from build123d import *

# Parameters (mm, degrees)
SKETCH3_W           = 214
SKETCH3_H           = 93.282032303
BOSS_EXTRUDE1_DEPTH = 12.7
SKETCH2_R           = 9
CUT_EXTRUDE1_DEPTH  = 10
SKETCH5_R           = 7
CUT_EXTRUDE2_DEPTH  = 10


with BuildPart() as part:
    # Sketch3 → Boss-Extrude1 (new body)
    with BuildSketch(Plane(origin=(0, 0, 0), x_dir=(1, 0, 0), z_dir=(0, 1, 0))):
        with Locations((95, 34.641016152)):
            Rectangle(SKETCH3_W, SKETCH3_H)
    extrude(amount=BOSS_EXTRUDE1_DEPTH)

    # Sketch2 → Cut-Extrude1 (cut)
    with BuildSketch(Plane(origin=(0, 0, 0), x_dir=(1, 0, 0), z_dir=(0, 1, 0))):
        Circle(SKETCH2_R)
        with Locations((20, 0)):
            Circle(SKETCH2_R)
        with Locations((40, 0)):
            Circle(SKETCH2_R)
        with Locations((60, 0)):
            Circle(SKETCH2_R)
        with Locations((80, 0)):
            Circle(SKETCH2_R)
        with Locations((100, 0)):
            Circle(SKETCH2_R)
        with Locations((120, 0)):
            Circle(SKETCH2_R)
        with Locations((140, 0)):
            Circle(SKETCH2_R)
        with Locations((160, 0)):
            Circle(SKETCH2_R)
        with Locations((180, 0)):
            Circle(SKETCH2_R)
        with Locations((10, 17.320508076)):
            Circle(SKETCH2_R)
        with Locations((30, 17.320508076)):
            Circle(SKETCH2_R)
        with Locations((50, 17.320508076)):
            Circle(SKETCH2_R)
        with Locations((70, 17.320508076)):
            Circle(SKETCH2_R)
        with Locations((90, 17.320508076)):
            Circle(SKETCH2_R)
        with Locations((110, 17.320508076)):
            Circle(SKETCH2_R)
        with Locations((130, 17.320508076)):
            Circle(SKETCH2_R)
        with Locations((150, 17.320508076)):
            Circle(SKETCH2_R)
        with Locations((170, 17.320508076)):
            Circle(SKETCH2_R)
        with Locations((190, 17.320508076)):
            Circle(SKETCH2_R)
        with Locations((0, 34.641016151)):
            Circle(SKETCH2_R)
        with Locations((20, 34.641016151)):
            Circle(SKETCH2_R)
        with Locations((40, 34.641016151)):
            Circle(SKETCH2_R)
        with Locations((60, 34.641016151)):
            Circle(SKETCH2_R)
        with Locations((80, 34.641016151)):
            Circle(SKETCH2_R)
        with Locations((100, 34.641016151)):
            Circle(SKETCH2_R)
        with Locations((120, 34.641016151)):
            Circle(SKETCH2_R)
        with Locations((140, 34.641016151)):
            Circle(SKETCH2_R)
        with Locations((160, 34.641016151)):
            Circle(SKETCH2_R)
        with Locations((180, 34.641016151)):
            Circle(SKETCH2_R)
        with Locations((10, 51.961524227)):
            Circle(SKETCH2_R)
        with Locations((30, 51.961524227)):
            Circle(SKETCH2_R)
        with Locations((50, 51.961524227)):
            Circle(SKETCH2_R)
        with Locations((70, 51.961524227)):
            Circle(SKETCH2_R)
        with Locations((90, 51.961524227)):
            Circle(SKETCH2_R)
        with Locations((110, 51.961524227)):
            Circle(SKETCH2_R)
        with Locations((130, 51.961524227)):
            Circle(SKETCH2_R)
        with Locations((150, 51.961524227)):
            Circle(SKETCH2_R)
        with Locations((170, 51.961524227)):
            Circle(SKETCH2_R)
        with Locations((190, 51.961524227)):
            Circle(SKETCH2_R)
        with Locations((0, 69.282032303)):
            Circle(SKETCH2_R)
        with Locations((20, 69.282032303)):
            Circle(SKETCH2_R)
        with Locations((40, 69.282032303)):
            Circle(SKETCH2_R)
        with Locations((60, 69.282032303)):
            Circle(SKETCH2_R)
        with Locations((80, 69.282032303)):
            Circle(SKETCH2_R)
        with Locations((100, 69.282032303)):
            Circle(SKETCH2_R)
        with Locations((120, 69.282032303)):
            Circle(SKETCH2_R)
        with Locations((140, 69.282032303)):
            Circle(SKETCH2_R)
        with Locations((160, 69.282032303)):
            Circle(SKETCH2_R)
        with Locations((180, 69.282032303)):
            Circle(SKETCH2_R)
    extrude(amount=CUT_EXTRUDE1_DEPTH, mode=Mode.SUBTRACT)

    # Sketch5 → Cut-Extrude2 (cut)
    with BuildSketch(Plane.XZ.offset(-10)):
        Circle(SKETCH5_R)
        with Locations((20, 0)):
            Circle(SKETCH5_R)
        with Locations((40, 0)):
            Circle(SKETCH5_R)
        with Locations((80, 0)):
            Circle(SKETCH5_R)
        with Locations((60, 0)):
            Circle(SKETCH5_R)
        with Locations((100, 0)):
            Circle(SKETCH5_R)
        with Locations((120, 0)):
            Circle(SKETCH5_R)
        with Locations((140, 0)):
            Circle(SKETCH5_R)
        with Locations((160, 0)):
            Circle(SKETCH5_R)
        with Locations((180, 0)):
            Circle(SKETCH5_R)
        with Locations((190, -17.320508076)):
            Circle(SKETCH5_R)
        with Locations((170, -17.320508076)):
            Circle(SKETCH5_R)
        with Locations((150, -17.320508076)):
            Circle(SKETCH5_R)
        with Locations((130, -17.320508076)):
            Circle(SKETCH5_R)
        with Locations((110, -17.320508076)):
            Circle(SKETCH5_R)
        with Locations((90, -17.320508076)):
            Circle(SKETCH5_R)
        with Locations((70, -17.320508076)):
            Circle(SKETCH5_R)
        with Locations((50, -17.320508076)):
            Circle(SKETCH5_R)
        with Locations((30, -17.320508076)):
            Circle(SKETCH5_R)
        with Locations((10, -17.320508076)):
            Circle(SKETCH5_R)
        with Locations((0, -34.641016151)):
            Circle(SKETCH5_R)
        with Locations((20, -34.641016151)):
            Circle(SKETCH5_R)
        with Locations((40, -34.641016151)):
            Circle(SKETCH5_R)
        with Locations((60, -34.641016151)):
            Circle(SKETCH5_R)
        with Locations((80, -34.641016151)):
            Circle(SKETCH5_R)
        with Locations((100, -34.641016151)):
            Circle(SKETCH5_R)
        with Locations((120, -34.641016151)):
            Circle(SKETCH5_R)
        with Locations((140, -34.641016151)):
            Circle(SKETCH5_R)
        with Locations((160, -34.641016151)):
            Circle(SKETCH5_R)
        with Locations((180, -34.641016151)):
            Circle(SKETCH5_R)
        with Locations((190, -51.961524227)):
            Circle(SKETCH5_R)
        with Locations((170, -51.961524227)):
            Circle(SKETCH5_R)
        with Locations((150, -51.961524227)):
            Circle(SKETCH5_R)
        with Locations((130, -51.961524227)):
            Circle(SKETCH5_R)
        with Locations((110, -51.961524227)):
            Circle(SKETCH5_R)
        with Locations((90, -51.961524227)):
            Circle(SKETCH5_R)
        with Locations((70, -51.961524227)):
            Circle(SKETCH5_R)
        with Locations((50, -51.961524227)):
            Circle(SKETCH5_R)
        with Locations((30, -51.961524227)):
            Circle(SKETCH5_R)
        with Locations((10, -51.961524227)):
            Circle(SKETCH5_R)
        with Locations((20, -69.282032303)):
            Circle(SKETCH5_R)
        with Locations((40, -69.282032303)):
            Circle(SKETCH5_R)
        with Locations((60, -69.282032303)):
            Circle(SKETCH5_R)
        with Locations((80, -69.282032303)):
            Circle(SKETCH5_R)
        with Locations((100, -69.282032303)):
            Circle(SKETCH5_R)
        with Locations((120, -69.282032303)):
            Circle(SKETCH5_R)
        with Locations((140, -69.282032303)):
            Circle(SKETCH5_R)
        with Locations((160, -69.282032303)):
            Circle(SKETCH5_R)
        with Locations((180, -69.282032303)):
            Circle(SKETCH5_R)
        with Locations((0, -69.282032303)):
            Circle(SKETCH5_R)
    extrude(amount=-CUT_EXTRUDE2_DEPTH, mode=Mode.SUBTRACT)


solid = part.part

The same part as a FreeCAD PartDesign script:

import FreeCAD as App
import Part
import Sketcher

V = App.Vector
Q = App.Units.Quantity


def add_polygon(sketch, points):
    """Adds a closed chain of lines whose ends are joined by coincident constraints."""
    first, n = sketch.GeometryCount, len(points)
    for a, b in zip(points, points[1:] + points[:1]):
        sketch.addGeometry(Part.LineSegment(App.Vector(*a, 0), App.Vector(*b, 0)), False)
    for i in range(n):
        sketch.addConstraint(Sketcher.Constraint("Coincident", first + i, 2, first + (i + 1) % n, 1))

doc = App.newDocument("Part")
body = doc.addObject("PartDesign::Body", "Body")

# Sketch on XZ plane
sketch1 = body.newObject("Sketcher::SketchObject", "Sketch")
sketch1.AttachmentSupport = (doc.getObject("XZ_Plane"), [""])
sketch1.MapMode = "FlatFace"
add_polygon(sketch1, [(-12, -81), (-12, 12), (202, 12), (202, -81)])  # lines 0-3
sketch1.addConstraint(Sketcher.Constraint("Vertical", 0))
sketch1.addConstraint(Sketcher.Constraint("Horizontal", 1))
sketch1.addConstraint(Sketcher.Constraint("Vertical", 2))
sketch1.addConstraint(Sketcher.Constraint("Horizontal", 3))
sketch1.addConstraint(Sketcher.Constraint("DistanceX", 1, 1, 1, 2, Q("214 mm")))
sketch1.addConstraint(Sketcher.Constraint("DistanceX", 0, 2, -1, 1, Q("12 mm")))
sketch1.addConstraint(Sketcher.Constraint("DistanceY", -1, 1, 0, 2, Q("12 mm")))
sketch1.addConstraint(Sketcher.Constraint("DistanceY", 0, 1, 0, 2, Q("93.282032 mm")))
pad1 = body.newObject("PartDesign::Pad", "Pad")
pad1.Profile = sketch1
pad1.Length = 12.7
pad1.Reversed = True

# Sketch on XZ plane
sketch2 = body.newObject("Sketcher::SketchObject", "Sketch001")
sketch2.AttachmentSupport = (doc.getObject("XZ_Plane"), [""])
sketch2.MapMode = "FlatFace"
sketch2.addGeometry(Part.Circle(V(0, 0, 0), V(0, 0, 1), 9), False)
sketch2.addGeometry(Part.Circle(V(20, 0, 0), V(0, 0, 1), 9), False)
sketch2.addGeometry(Part.Circle(V(40, 0, 0), V(0, 0, 1), 9), False)
sketch2.addGeometry(Part.Circle(V(60, 0, 0), V(0, 0, 1), 9), False)
sketch2.addGeometry(Part.Circle(V(80, 0, 0), V(0, 0, 1), 9), False)
sketch2.addGeometry(Part.Circle(V(100, 0, 0), V(0, 0, 1), 9), False)
sketch2.addGeometry(Part.Circle(V(120, 0, 0), V(0, 0, 1), 9), False)
sketch2.addGeometry(Part.Circle(V(140, 0, 0), V(0, 0, 1), 9), False)
sketch2.addGeometry(Part.Circle(V(160, 0, 0), V(0, 0, 1), 9), False)
sketch2.addGeometry(Part.Circle(V(180, 0, 0), V(0, 0, 1), 9), False)
sketch2.addGeometry(Part.Circle(V(10, -17, 0), V(0, 0, 1), 9), False)
sketch2.addGeometry(Part.Circle(V(30, -17, 0), V(0, 0, 1), 9), False)
sketch2.addGeometry(Part.Circle(V(50, -17, 0), V(0, 0, 1), 9), False)
sketch2.addGeometry(Part.Circle(V(70, -17, 0), V(0, 0, 1), 9), False)
sketch2.addGeometry(Part.Circle(V(90, -17, 0), V(0, 0, 1), 9), False)
sketch2.addGeometry(Part.Circle(V(110, -17, 0), V(0, 0, 1), 9), False)
sketch2.addGeometry(Part.Circle(V(130, -17, 0), V(0, 0, 1), 9), False)
sketch2.addGeometry(Part.Circle(V(150, -17, 0), V(0, 0, 1), 9), False)
sketch2.addGeometry(Part.Circle(V(170, -17, 0), V(0, 0, 1), 9), False)
sketch2.addGeometry(Part.Circle(V(190, -17, 0), V(0, 0, 1), 9), False)
sketch2.addGeometry(Part.Circle(V(0, -35, 0), V(0, 0, 1), 9), False)
sketch2.addGeometry(Part.Circle(V(20, -35, 0), V(0, 0, 1), 9), False)
sketch2.addGeometry(Part.Circle(V(40, -35, 0), V(0, 0, 1), 9), False)
sketch2.addGeometry(Part.Circle(V(60, -35, 0), V(0, 0, 1), 9), False)
sketch2.addGeometry(Part.Circle(V(80, -35, 0), V(0, 0, 1), 9), False)
sketch2.addGeometry(Part.Circle(V(100, -35, 0), V(0, 0, 1), 9), False)
sketch2.addGeometry(Part.Circle(V(120, -35, 0), V(0, 0, 1), 9), False)
sketch2.addGeometry(Part.Circle(V(140, -35, 0), V(0, 0, 1), 9), False)
sketch2.addGeometry(Part.Circle(V(160, -35, 0), V(0, 0, 1), 9), False)
sketch2.addGeometry(Part.Circle(V(180, -35, 0), V(0, 0, 1), 9), False)
sketch2.addGeometry(Part.Circle(V(10, -52, 0), V(0, 0, 1), 9), False)
sketch2.addGeometry(Part.Circle(V(30, -52, 0), V(0, 0, 1), 9), False)
sketch2.addGeometry(Part.Circle(V(50, -52, 0), V(0, 0, 1), 9), False)
sketch2.addGeometry(Part.Circle(V(70, -52, 0), V(0, 0, 1), 9), False)
sketch2.addGeometry(Part.Circle(V(90, -52, 0), V(0, 0, 1), 9), False)
sketch2.addGeometry(Part.Circle(V(110, -52, 0), V(0, 0, 1), 9), False)
sketch2.addGeometry(Part.Circle(V(130, -52, 0), V(0, 0, 1), 9), False)
sketch2.addGeometry(Part.Circle(V(150, -52, 0), V(0, 0, 1), 9), False)
sketch2.addGeometry(Part.Circle(V(170, -52, 0), V(0, 0, 1), 9), False)
sketch2.addGeometry(Part.Circle(V(190, -52, 0), V(0, 0, 1), 9), False)
sketch2.addGeometry(Part.Circle(V(0, -69, 0), V(0, 0, 1), 9), False)
sketch2.addGeometry(Part.Circle(V(20, -69, 0), V(0, 0, 1), 9), False)
sketch2.addGeometry(Part.Circle(V(40, -69, 0), V(0, 0, 1), 9), False)
sketch2.addGeometry(Part.Circle(V(60, -69, 0), V(0, 0, 1), 9), False)
sketch2.addGeometry(Part.Circle(V(80, -69, 0), V(0, 0, 1), 9), False)
sketch2.addGeometry(Part.Circle(V(100, -69, 0), V(0, 0, 1), 9), False)
sketch2.addGeometry(Part.Circle(V(120, -69, 0), V(0, 0, 1), 9), False)
sketch2.addGeometry(Part.Circle(V(140, -69, 0), V(0, 0, 1), 9), False)
sketch2.addGeometry(Part.Circle(V(160, -69, 0), V(0, 0, 1), 9), False)
sketch2.addGeometry(Part.Circle(V(180, -69, 0), V(0, 0, 1), 9), False)
sketch2.addConstraint(Sketcher.Constraint("Coincident", 0, 3, -1, 1))
sketch2.addConstraint(Sketcher.Constraint("Equal", 0, 1))
sketch2.addConstraint(Sketcher.Constraint("Equal", 1, 2))
sketch2.addConstraint(Sketcher.Constraint("Equal", 2, 3))
sketch2.addConstraint(Sketcher.Constraint("Equal", 3, 4))
sketch2.addConstraint(Sketcher.Constraint("Equal", 4, 5))
sketch2.addConstraint(Sketcher.Constraint("Equal", 5, 6))
sketch2.addConstraint(Sketcher.Constraint("Equal", 6, 7))
sketch2.addConstraint(Sketcher.Constraint("Equal", 7, 8))
sketch2.addConstraint(Sketcher.Constraint("Equal", 8, 9))
sketch2.addConstraint(Sketcher.Constraint("Equal", 9, 10))
sketch2.addConstraint(Sketcher.Constraint("Equal", 10, 11))
sketch2.addConstraint(Sketcher.Constraint("Equal", 11, 12))
sketch2.addConstraint(Sketcher.Constraint("Equal", 12, 13))
sketch2.addConstraint(Sketcher.Constraint("Equal", 13, 14))
sketch2.addConstraint(Sketcher.Constraint("Equal", 14, 15))
sketch2.addConstraint(Sketcher.Constraint("Equal", 15, 16))
sketch2.addConstraint(Sketcher.Constraint("Equal", 16, 17))
sketch2.addConstraint(Sketcher.Constraint("Equal", 17, 18))
sketch2.addConstraint(Sketcher.Constraint("Equal", 18, 19))
sketch2.addConstraint(Sketcher.Constraint("Equal", 19, 20))
sketch2.addConstraint(Sketcher.Constraint("Equal", 20, 21))
sketch2.addConstraint(Sketcher.Constraint("Equal", 21, 22))
sketch2.addConstraint(Sketcher.Constraint("Equal", 22, 23))
sketch2.addConstraint(Sketcher.Constraint("Equal", 23, 24))
sketch2.addConstraint(Sketcher.Constraint("Equal", 24, 25))
sketch2.addConstraint(Sketcher.Constraint("Equal", 25, 26))
sketch2.addConstraint(Sketcher.Constraint("Equal", 26, 27))
sketch2.addConstraint(Sketcher.Constraint("Equal", 27, 28))
sketch2.addConstraint(Sketcher.Constraint("Equal", 28, 29))
sketch2.addConstraint(Sketcher.Constraint("Equal", 29, 30))
sketch2.addConstraint(Sketcher.Constraint("Equal", 30, 31))
sketch2.addConstraint(Sketcher.Constraint("Equal", 31, 32))
sketch2.addConstraint(Sketcher.Constraint("Equal", 32, 33))
sketch2.addConstraint(Sketcher.Constraint("Equal", 33, 34))
sketch2.addConstraint(Sketcher.Constraint("Equal", 34, 35))
sketch2.addConstraint(Sketcher.Constraint("Equal", 35, 36))
sketch2.addConstraint(Sketcher.Constraint("Equal", 36, 37))
sketch2.addConstraint(Sketcher.Constraint("Equal", 37, 38))
sketch2.addConstraint(Sketcher.Constraint("Equal", 38, 39))
sketch2.addConstraint(Sketcher.Constraint("Equal", 39, 40))
sketch2.addConstraint(Sketcher.Constraint("Equal", 40, 41))
sketch2.addConstraint(Sketcher.Constraint("Equal", 41, 42))
sketch2.addConstraint(Sketcher.Constraint("Equal", 42, 43))
sketch2.addConstraint(Sketcher.Constraint("Equal", 43, 44))
sketch2.addConstraint(Sketcher.Constraint("Equal", 44, 45))
sketch2.addConstraint(Sketcher.Constraint("Equal", 45, 46))
sketch2.addConstraint(Sketcher.Constraint("Equal", 46, 47))
sketch2.addConstraint(Sketcher.Constraint("Equal", 47, 48))
sketch2.addConstraint(Sketcher.Constraint("Equal", 48, 49))
sketch2.addConstraint(Sketcher.Constraint("PointOnObject", 1, 3, -1))
sketch2.addConstraint(Sketcher.Constraint("PointOnObject", 2, 3, -1))
sketch2.addConstraint(Sketcher.Constraint("PointOnObject", 3, 3, -1))
sketch2.addConstraint(Sketcher.Constraint("PointOnObject", 4, 3, -1))
sketch2.addConstraint(Sketcher.Constraint("PointOnObject", 5, 3, -1))
sketch2.addConstraint(Sketcher.Constraint("PointOnObject", 6, 3, -1))
sketch2.addConstraint(Sketcher.Constraint("PointOnObject", 7, 3, -1))
sketch2.addConstraint(Sketcher.Constraint("PointOnObject", 8, 3, -1))
sketch2.addConstraint(Sketcher.Constraint("PointOnObject", 9, 3, -1))
sketch2.addConstraint(Sketcher.Constraint("PointOnObject", 20, 3, -2))
sketch2.addConstraint(Sketcher.Constraint("PointOnObject", 40, 3, -2))
sketch2.addConstraint(Sketcher.Constraint("Horizontal", 10, 3, 11, 3))
sketch2.addConstraint(Sketcher.Constraint("Horizontal", 11, 3, 12, 3))
sketch2.addConstraint(Sketcher.Constraint("Horizontal", 12, 3, 13, 3))
sketch2.addConstraint(Sketcher.Constraint("Horizontal", 13, 3, 14, 3))
sketch2.addConstraint(Sketcher.Constraint("Horizontal", 14, 3, 15, 3))
sketch2.addConstraint(Sketcher.Constraint("Horizontal", 15, 3, 16, 3))
sketch2.addConstraint(Sketcher.Constraint("Horizontal", 16, 3, 17, 3))
sketch2.addConstraint(Sketcher.Constraint("Horizontal", 17, 3, 18, 3))
sketch2.addConstraint(Sketcher.Constraint("Horizontal", 18, 3, 19, 3))
sketch2.addConstraint(Sketcher.Constraint("Horizontal", 20, 3, 21, 3))
sketch2.addConstraint(Sketcher.Constraint("Horizontal", 21, 3, 22, 3))
sketch2.addConstraint(Sketcher.Constraint("Horizontal", 22, 3, 23, 3))
sketch2.addConstraint(Sketcher.Constraint("Horizontal", 23, 3, 24, 3))
sketch2.addConstraint(Sketcher.Constraint("Horizontal", 24, 3, 25, 3))
sketch2.addConstraint(Sketcher.Constraint("Horizontal", 25, 3, 26, 3))
sketch2.addConstraint(Sketcher.Constraint("Horizontal", 26, 3, 27, 3))
sketch2.addConstraint(Sketcher.Constraint("Horizontal", 27, 3, 28, 3))
sketch2.addConstraint(Sketcher.Constraint("Horizontal", 28, 3, 29, 3))
sketch2.addConstraint(Sketcher.Constraint("Horizontal", 30, 3, 31, 3))
sketch2.addConstraint(Sketcher.Constraint("Horizontal", 31, 3, 32, 3))
sketch2.addConstraint(Sketcher.Constraint("Horizontal", 32, 3, 33, 3))
sketch2.addConstraint(Sketcher.Constraint("Horizontal", 33, 3, 34, 3))
sketch2.addConstraint(Sketcher.Constraint("Horizontal", 34, 3, 35, 3))
sketch2.addConstraint(Sketcher.Constraint("Horizontal", 35, 3, 36, 3))
sketch2.addConstraint(Sketcher.Constraint("Horizontal", 36, 3, 37, 3))
sketch2.addConstraint(Sketcher.Constraint("Horizontal", 37, 3, 38, 3))
sketch2.addConstraint(Sketcher.Constraint("Horizontal", 38, 3, 39, 3))
sketch2.addConstraint(Sketcher.Constraint("Horizontal", 40, 3, 41, 3))
sketch2.addConstraint(Sketcher.Constraint("Horizontal", 41, 3, 42, 3))
sketch2.addConstraint(Sketcher.Constraint("Horizontal", 42, 3, 43, 3))
sketch2.addConstraint(Sketcher.Constraint("Horizontal", 43, 3, 44, 3))
sketch2.addConstraint(Sketcher.Constraint("Horizontal", 44, 3, 45, 3))
sketch2.addConstraint(Sketcher.Constraint("Horizontal", 45, 3, 46, 3))
sketch2.addConstraint(Sketcher.Constraint("Horizontal", 46, 3, 47, 3))
sketch2.addConstraint(Sketcher.Constraint("Horizontal", 47, 3, 48, 3))
sketch2.addConstraint(Sketcher.Constraint("Horizontal", 48, 3, 49, 3))
sketch2.addConstraint(Sketcher.Constraint("Vertical", 1, 3, 21, 3))
sketch2.addConstraint(Sketcher.Constraint("Vertical", 2, 3, 22, 3))
sketch2.addConstraint(Sketcher.Constraint("Vertical", 3, 3, 23, 3))
sketch2.addConstraint(Sketcher.Constraint("Vertical", 4, 3, 24, 3))
sketch2.addConstraint(Sketcher.Constraint("Vertical", 5, 3, 25, 3))
sketch2.addConstraint(Sketcher.Constraint("Vertical", 6, 3, 26, 3))
sketch2.addConstraint(Sketcher.Constraint("Vertical", 7, 3, 27, 3))
sketch2.addConstraint(Sketcher.Constraint("Vertical", 8, 3, 28, 3))
sketch2.addConstraint(Sketcher.Constraint("Vertical", 9, 3, 29, 3))
sketch2.addConstraint(Sketcher.Constraint("Vertical", 10, 3, 30, 3))
sketch2.addConstraint(Sketcher.Constraint("Vertical", 11, 3, 31, 3))
sketch2.addConstraint(Sketcher.Constraint("Vertical", 12, 3, 32, 3))
sketch2.addConstraint(Sketcher.Constraint("Vertical", 13, 3, 33, 3))
sketch2.addConstraint(Sketcher.Constraint("Vertical", 14, 3, 34, 3))
sketch2.addConstraint(Sketcher.Constraint("Vertical", 15, 3, 35, 3))
sketch2.addConstraint(Sketcher.Constraint("Vertical", 16, 3, 36, 3))
sketch2.addConstraint(Sketcher.Constraint("Vertical", 17, 3, 37, 3))
sketch2.addConstraint(Sketcher.Constraint("Vertical", 18, 3, 38, 3))
sketch2.addConstraint(Sketcher.Constraint("Vertical", 19, 3, 39, 3))
sketch2.addConstraint(Sketcher.Constraint("Vertical", 21, 3, 41, 3))
sketch2.addConstraint(Sketcher.Constraint("Vertical", 22, 3, 42, 3))
sketch2.addConstraint(Sketcher.Constraint("Vertical", 23, 3, 43, 3))
sketch2.addConstraint(Sketcher.Constraint("Vertical", 24, 3, 44, 3))
sketch2.addConstraint(Sketcher.Constraint("Vertical", 25, 3, 45, 3))
sketch2.addConstraint(Sketcher.Constraint("Vertical", 26, 3, 46, 3))
sketch2.addConstraint(Sketcher.Constraint("Vertical", 27, 3, 47, 3))
sketch2.addConstraint(Sketcher.Constraint("Vertical", 28, 3, 48, 3))
sketch2.addConstraint(Sketcher.Constraint("Vertical", 29, 3, 49, 3))
sketch2.addConstraint(Sketcher.Constraint("Diameter", 0, Q("18 mm")))
sketch2.addConstraint(Sketcher.Constraint("DistanceX", -1, 1, 1, 3, Q("20 mm")))
sketch2.addConstraint(Sketcher.Constraint("DistanceX", -1, 1, 2, 3, Q("40 mm")))
sketch2.addConstraint(Sketcher.Constraint("DistanceX", -1, 1, 3, 3, Q("60 mm")))
sketch2.addConstraint(Sketcher.Constraint("DistanceX", -1, 1, 4, 3, Q("80 mm")))
sketch2.addConstraint(Sketcher.Constraint("DistanceX", -1, 1, 5, 3, Q("100 mm")))
sketch2.addConstraint(Sketcher.Constraint("DistanceX", -1, 1, 6, 3, Q("120 mm")))
sketch2.addConstraint(Sketcher.Constraint("DistanceX", -1, 1, 7, 3, Q("140 mm")))
sketch2.addConstraint(Sketcher.Constraint("DistanceX", -1, 1, 8, 3, Q("160 mm")))
sketch2.addConstraint(Sketcher.Constraint("DistanceX", -1, 1, 9, 3, Q("180 mm")))
sketch2.addConstraint(Sketcher.Constraint("DistanceX", -1, 1, 10, 3, Q("10 mm")))
sketch2.addConstraint(Sketcher.Constraint("DistanceX", -1, 1, 11, 3, Q("30 mm")))
sketch2.addConstraint(Sketcher.Constraint("DistanceX", -1, 1, 12, 3, Q("50 mm")))
sketch2.addConstraint(Sketcher.Constraint("DistanceX", -1, 1, 13, 3, Q("70 mm")))
sketch2.addConstraint(Sketcher.Constraint("DistanceX", -1, 1, 14, 3, Q("90 mm")))
sketch2.addConstraint(Sketcher.Constraint("DistanceX", -1, 1, 15, 3, Q("110 mm")))
sketch2.addConstraint(Sketcher.Constraint("DistanceX", -1, 1, 16, 3, Q("130 mm")))
sketch2.addConstraint(Sketcher.Constraint("DistanceX", -1, 1, 17, 3, Q("150 mm")))
sketch2.addConstraint(Sketcher.Constraint("DistanceX", -1, 1, 18, 3, Q("170 mm")))
sketch2.addConstraint(Sketcher.Constraint("DistanceX", -1, 1, 19, 3, Q("190 mm")))
sketch2.addConstraint(Sketcher.Constraint("DistanceY", 10, 3, -1, 1, Q("17.320508 mm")))
sketch2.addConstraint(Sketcher.Constraint("DistanceY", 20, 3, 10, 3, Q("17.320508 mm")))
sketch2.addConstraint(Sketcher.Constraint("DistanceY", 30, 3, 20, 3, Q("17.320508 mm")))
sketch2.addConstraint(Sketcher.Constraint("DistanceY", 40, 3, 30, 3, Q("17.320508 mm")))
pocket1 = body.newObject("PartDesign::Pocket", "Pocket")
pocket1.Profile = sketch2
pocket1.Length = 10

# Sketch on XZ plane
sketch3 = body.newObject("Sketcher::SketchObject", "Sketch002")
sketch3.AttachmentSupport = (doc.getObject("XZ_Plane"), [""])
sketch3.MapMode = "FlatFace"
sketch3.AttachmentOffset = App.Placement(V(0, 0, -10), App.Rotation())
sketch3.addGeometry(Part.Circle(V(0, 0, 0), V(0, 0, 1), 7), False)
sketch3.addGeometry(Part.Circle(V(20, 0, 0), V(0, 0, 1), 7), False)
sketch3.addGeometry(Part.Circle(V(40, 0, 0), V(0, 0, 1), 7), False)
sketch3.addGeometry(Part.Circle(V(80, 0, 0), V(0, 0, 1), 7), False)
sketch3.addGeometry(Part.Circle(V(60, 0, 0), V(0, 0, 1), 7), False)
sketch3.addGeometry(Part.Circle(V(100, 0, 0), V(0, 0, 1), 7), False)
sketch3.addGeometry(Part.Circle(V(120, 0, 0), V(0, 0, 1), 7), False)
sketch3.addGeometry(Part.Circle(V(140, 0, 0), V(0, 0, 1), 7), False)
sketch3.addGeometry(Part.Circle(V(160, 0, 0), V(0, 0, 1), 7), False)
sketch3.addGeometry(Part.Circle(V(180, 0, 0), V(0, 0, 1), 7), False)
sketch3.addGeometry(Part.Circle(V(190, -17, 0), V(0, 0, 1), 7), False)
sketch3.addGeometry(Part.Circle(V(170, -17, 0), V(0, 0, 1), 7), False)
sketch3.addGeometry(Part.Circle(V(150, -17, 0), V(0, 0, 1), 7), False)
sketch3.addGeometry(Part.Circle(V(130, -17, 0), V(0, 0, 1), 7), False)
sketch3.addGeometry(Part.Circle(V(110, -17, 0), V(0, 0, 1), 7), False)
sketch3.addGeometry(Part.Circle(V(90, -17, 0), V(0, 0, 1), 7), False)
sketch3.addGeometry(Part.Circle(V(70, -17, 0), V(0, 0, 1), 7), False)
sketch3.addGeometry(Part.Circle(V(50, -17, 0), V(0, 0, 1), 7), False)
sketch3.addGeometry(Part.Circle(V(30, -17, 0), V(0, 0, 1), 7), False)
sketch3.addGeometry(Part.Circle(V(10, -17, 0), V(0, 0, 1), 7), False)
sketch3.addGeometry(Part.Circle(V(0, -35, 0), V(0, 0, 1), 7), False)
sketch3.addGeometry(Part.Circle(V(20, -35, 0), V(0, 0, 1), 7), False)
sketch3.addGeometry(Part.Circle(V(40, -35, 0), V(0, 0, 1), 7), False)
sketch3.addGeometry(Part.Circle(V(60, -35, 0), V(0, 0, 1), 7), False)
sketch3.addGeometry(Part.Circle(V(80, -35, 0), V(0, 0, 1), 7), False)
sketch3.addGeometry(Part.Circle(V(100, -35, 0), V(0, 0, 1), 7), False)
sketch3.addGeometry(Part.Circle(V(120, -35, 0), V(0, 0, 1), 7), False)
sketch3.addGeometry(Part.Circle(V(140, -35, 0), V(0, 0, 1), 7), False)
sketch3.addGeometry(Part.Circle(V(160, -35, 0), V(0, 0, 1), 7), False)
sketch3.addGeometry(Part.Circle(V(180, -35, 0), V(0, 0, 1), 7), False)
sketch3.addGeometry(Part.Circle(V(190, -52, 0), V(0, 0, 1), 7), False)
sketch3.addGeometry(Part.Circle(V(170, -52, 0), V(0, 0, 1), 7), False)
sketch3.addGeometry(Part.Circle(V(150, -52, 0), V(0, 0, 1), 7), False)
sketch3.addGeometry(Part.Circle(V(130, -52, 0), V(0, 0, 1), 7), False)
sketch3.addGeometry(Part.Circle(V(110, -52, 0), V(0, 0, 1), 7), False)
sketch3.addGeometry(Part.Circle(V(90, -52, 0), V(0, 0, 1), 7), False)
sketch3.addGeometry(Part.Circle(V(70, -52, 0), V(0, 0, 1), 7), False)
sketch3.addGeometry(Part.Circle(V(50, -52, 0), V(0, 0, 1), 7), False)
sketch3.addGeometry(Part.Circle(V(30, -52, 0), V(0, 0, 1), 7), False)
sketch3.addGeometry(Part.Circle(V(10, -52, 0), V(0, 0, 1), 7), False)
sketch3.addGeometry(Part.Circle(V(20, -69, 0), V(0, 0, 1), 7), False)
sketch3.addGeometry(Part.Circle(V(40, -69, 0), V(0, 0, 1), 7), False)
sketch3.addGeometry(Part.Circle(V(60, -69, 0), V(0, 0, 1), 7), False)
sketch3.addGeometry(Part.Circle(V(80, -69, 0), V(0, 0, 1), 7), False)
sketch3.addGeometry(Part.Circle(V(100, -69, 0), V(0, 0, 1), 7), False)
sketch3.addGeometry(Part.Circle(V(120, -69, 0), V(0, 0, 1), 7), False)
sketch3.addGeometry(Part.Circle(V(140, -69, 0), V(0, 0, 1), 7), False)
sketch3.addGeometry(Part.Circle(V(160, -69, 0), V(0, 0, 1), 7), False)
sketch3.addGeometry(Part.Circle(V(180, -69, 0), V(0, 0, 1), 7), False)
sketch3.addGeometry(Part.Circle(V(0, -69, 0), V(0, 0, 1), 7), False)
sketch3.addConstraint(Sketcher.Constraint("Coincident", 0, 3, -1, 1))
sketch3.addConstraint(Sketcher.Constraint("Equal", 0, 1))
sketch3.addConstraint(Sketcher.Constraint("Equal", 1, 2))
sketch3.addConstraint(Sketcher.Constraint("Equal", 2, 3))
sketch3.addConstraint(Sketcher.Constraint("Equal", 3, 4))
sketch3.addConstraint(Sketcher.Constraint("Equal", 4, 5))
sketch3.addConstraint(Sketcher.Constraint("Equal", 5, 6))
sketch3.addConstraint(Sketcher.Constraint("Equal", 6, 7))
sketch3.addConstraint(Sketcher.Constraint("Equal", 7, 8))
sketch3.addConstraint(Sketcher.Constraint("Equal", 8, 9))
sketch3.addConstraint(Sketcher.Constraint("Equal", 9, 10))
sketch3.addConstraint(Sketcher.Constraint("Equal", 10, 11))
sketch3.addConstraint(Sketcher.Constraint("Equal", 11, 12))
sketch3.addConstraint(Sketcher.Constraint("Equal", 12, 13))
sketch3.addConstraint(Sketcher.Constraint("Equal", 13, 14))
sketch3.addConstraint(Sketcher.Constraint("Equal", 14, 15))
sketch3.addConstraint(Sketcher.Constraint("Equal", 15, 16))
sketch3.addConstraint(Sketcher.Constraint("Equal", 16, 17))
sketch3.addConstraint(Sketcher.Constraint("Equal", 17, 18))
sketch3.addConstraint(Sketcher.Constraint("Equal", 18, 19))
sketch3.addConstraint(Sketcher.Constraint("Equal", 19, 20))
sketch3.addConstraint(Sketcher.Constraint("Equal", 20, 21))
sketch3.addConstraint(Sketcher.Constraint("Equal", 21, 22))
sketch3.addConstraint(Sketcher.Constraint("Equal", 22, 23))
sketch3.addConstraint(Sketcher.Constraint("Equal", 23, 24))
sketch3.addConstraint(Sketcher.Constraint("Equal", 24, 25))
sketch3.addConstraint(Sketcher.Constraint("Equal", 25, 26))
sketch3.addConstraint(Sketcher.Constraint("Equal", 26, 27))
sketch3.addConstraint(Sketcher.Constraint("Equal", 27, 28))
sketch3.addConstraint(Sketcher.Constraint("Equal", 28, 29))
sketch3.addConstraint(Sketcher.Constraint("Equal", 29, 30))
sketch3.addConstraint(Sketcher.Constraint("Equal", 30, 31))
sketch3.addConstraint(Sketcher.Constraint("Equal", 31, 32))
sketch3.addConstraint(Sketcher.Constraint("Equal", 32, 33))
sketch3.addConstraint(Sketcher.Constraint("Equal", 33, 34))
sketch3.addConstraint(Sketcher.Constraint("Equal", 34, 35))
sketch3.addConstraint(Sketcher.Constraint("Equal", 35, 36))
sketch3.addConstraint(Sketcher.Constraint("Equal", 36, 37))
sketch3.addConstraint(Sketcher.Constraint("Equal", 37, 38))
sketch3.addConstraint(Sketcher.Constraint("Equal", 38, 39))
sketch3.addConstraint(Sketcher.Constraint("Equal", 39, 40))
sketch3.addConstraint(Sketcher.Constraint("Equal", 40, 41))
sketch3.addConstraint(Sketcher.Constraint("Equal", 41, 42))
sketch3.addConstraint(Sketcher.Constraint("Equal", 42, 43))
sketch3.addConstraint(Sketcher.Constraint("Equal", 43, 44))
sketch3.addConstraint(Sketcher.Constraint("Equal", 44, 45))
sketch3.addConstraint(Sketcher.Constraint("Equal", 45, 46))
sketch3.addConstraint(Sketcher.Constraint("Equal", 46, 47))
sketch3.addConstraint(Sketcher.Constraint("Equal", 47, 48))
sketch3.addConstraint(Sketcher.Constraint("Equal", 48, 49))
sketch3.addConstraint(Sketcher.Constraint("PointOnObject", 1, 3, -1))
sketch3.addConstraint(Sketcher.Constraint("PointOnObject", 2, 3, -1))
sketch3.addConstraint(Sketcher.Constraint("PointOnObject", 3, 3, -1))
sketch3.addConstraint(Sketcher.Constraint("PointOnObject", 4, 3, -1))
sketch3.addConstraint(Sketcher.Constraint("PointOnObject", 5, 3, -1))
sketch3.addConstraint(Sketcher.Constraint("PointOnObject", 6, 3, -1))
sketch3.addConstraint(Sketcher.Constraint("PointOnObject", 7, 3, -1))
sketch3.addConstraint(Sketcher.Constraint("PointOnObject", 8, 3, -1))
sketch3.addConstraint(Sketcher.Constraint("PointOnObject", 9, 3, -1))
sketch3.addConstraint(Sketcher.Constraint("PointOnObject", 20, 3, -2))
sketch3.addConstraint(Sketcher.Constraint("PointOnObject", 49, 3, -2))
sketch3.addConstraint(Sketcher.Constraint("Horizontal", 10, 3, 11, 3))
sketch3.addConstraint(Sketcher.Constraint("Horizontal", 11, 3, 12, 3))
sketch3.addConstraint(Sketcher.Constraint("Horizontal", 12, 3, 13, 3))
sketch3.addConstraint(Sketcher.Constraint("Horizontal", 13, 3, 14, 3))
sketch3.addConstraint(Sketcher.Constraint("Horizontal", 14, 3, 15, 3))
sketch3.addConstraint(Sketcher.Constraint("Horizontal", 15, 3, 16, 3))
sketch3.addConstraint(Sketcher.Constraint("Horizontal", 16, 3, 17, 3))
sketch3.addConstraint(Sketcher.Constraint("Horizontal", 17, 3, 18, 3))
sketch3.addConstraint(Sketcher.Constraint("Horizontal", 18, 3, 19, 3))
sketch3.addConstraint(Sketcher.Constraint("Horizontal", 20, 3, 21, 3))
sketch3.addConstraint(Sketcher.Constraint("Horizontal", 21, 3, 22, 3))
sketch3.addConstraint(Sketcher.Constraint("Horizontal", 22, 3, 23, 3))
sketch3.addConstraint(Sketcher.Constraint("Horizontal", 23, 3, 24, 3))
sketch3.addConstraint(Sketcher.Constraint("Horizontal", 24, 3, 25, 3))
sketch3.addConstraint(Sketcher.Constraint("Horizontal", 25, 3, 26, 3))
sketch3.addConstraint(Sketcher.Constraint("Horizontal", 26, 3, 27, 3))
sketch3.addConstraint(Sketcher.Constraint("Horizontal", 27, 3, 28, 3))
sketch3.addConstraint(Sketcher.Constraint("Horizontal", 28, 3, 29, 3))
sketch3.addConstraint(Sketcher.Constraint("Horizontal", 30, 3, 31, 3))
sketch3.addConstraint(Sketcher.Constraint("Horizontal", 31, 3, 32, 3))
sketch3.addConstraint(Sketcher.Constraint("Horizontal", 32, 3, 33, 3))
sketch3.addConstraint(Sketcher.Constraint("Horizontal", 33, 3, 34, 3))
sketch3.addConstraint(Sketcher.Constraint("Horizontal", 34, 3, 35, 3))
sketch3.addConstraint(Sketcher.Constraint("Horizontal", 35, 3, 36, 3))
sketch3.addConstraint(Sketcher.Constraint("Horizontal", 36, 3, 37, 3))
sketch3.addConstraint(Sketcher.Constraint("Horizontal", 37, 3, 38, 3))
sketch3.addConstraint(Sketcher.Constraint("Horizontal", 38, 3, 39, 3))
sketch3.addConstraint(Sketcher.Constraint("Horizontal", 40, 3, 41, 3))
sketch3.addConstraint(Sketcher.Constraint("Horizontal", 41, 3, 42, 3))
sketch3.addConstraint(Sketcher.Constraint("Horizontal", 42, 3, 43, 3))
sketch3.addConstraint(Sketcher.Constraint("Horizontal", 43, 3, 44, 3))
sketch3.addConstraint(Sketcher.Constraint("Horizontal", 44, 3, 45, 3))
sketch3.addConstraint(Sketcher.Constraint("Horizontal", 45, 3, 46, 3))
sketch3.addConstraint(Sketcher.Constraint("Horizontal", 46, 3, 47, 3))
sketch3.addConstraint(Sketcher.Constraint("Horizontal", 47, 3, 48, 3))
sketch3.addConstraint(Sketcher.Constraint("Horizontal", 48, 3, 49, 3))
sketch3.addConstraint(Sketcher.Constraint("Vertical", 1, 3, 21, 3))
sketch3.addConstraint(Sketcher.Constraint("Vertical", 2, 3, 22, 3))
sketch3.addConstraint(Sketcher.Constraint("Vertical", 4, 3, 23, 3))
sketch3.addConstraint(Sketcher.Constraint("Vertical", 3, 3, 24, 3))
sketch3.addConstraint(Sketcher.Constraint("Vertical", 5, 3, 25, 3))
sketch3.addConstraint(Sketcher.Constraint("Vertical", 6, 3, 26, 3))
sketch3.addConstraint(Sketcher.Constraint("Vertical", 7, 3, 27, 3))
sketch3.addConstraint(Sketcher.Constraint("Vertical", 8, 3, 28, 3))
sketch3.addConstraint(Sketcher.Constraint("Vertical", 9, 3, 29, 3))
sketch3.addConstraint(Sketcher.Constraint("Vertical", 10, 3, 30, 3))
sketch3.addConstraint(Sketcher.Constraint("Vertical", 11, 3, 31, 3))
sketch3.addConstraint(Sketcher.Constraint("Vertical", 12, 3, 32, 3))
sketch3.addConstraint(Sketcher.Constraint("Vertical", 13, 3, 33, 3))
sketch3.addConstraint(Sketcher.Constraint("Vertical", 14, 3, 34, 3))
sketch3.addConstraint(Sketcher.Constraint("Vertical", 15, 3, 35, 3))
sketch3.addConstraint(Sketcher.Constraint("Vertical", 16, 3, 36, 3))
sketch3.addConstraint(Sketcher.Constraint("Vertical", 17, 3, 37, 3))
sketch3.addConstraint(Sketcher.Constraint("Vertical", 18, 3, 38, 3))
sketch3.addConstraint(Sketcher.Constraint("Vertical", 19, 3, 39, 3))
sketch3.addConstraint(Sketcher.Constraint("Vertical", 21, 3, 40, 3))
sketch3.addConstraint(Sketcher.Constraint("Vertical", 22, 3, 41, 3))
sketch3.addConstraint(Sketcher.Constraint("Vertical", 23, 3, 42, 3))
sketch3.addConstraint(Sketcher.Constraint("Vertical", 24, 3, 43, 3))
sketch3.addConstraint(Sketcher.Constraint("Vertical", 25, 3, 44, 3))
sketch3.addConstraint(Sketcher.Constraint("Vertical", 26, 3, 45, 3))
sketch3.addConstraint(Sketcher.Constraint("Vertical", 27, 3, 46, 3))
sketch3.addConstraint(Sketcher.Constraint("Vertical", 28, 3, 47, 3))
sketch3.addConstraint(Sketcher.Constraint("Vertical", 29, 3, 48, 3))
sketch3.addConstraint(Sketcher.Constraint("Diameter", 0, Q("14 mm")))
sketch3.addConstraint(Sketcher.Constraint("DistanceX", -1, 1, 1, 3, Q("20 mm")))
sketch3.addConstraint(Sketcher.Constraint("DistanceX", -1, 1, 2, 3, Q("40 mm")))
sketch3.addConstraint(Sketcher.Constraint("DistanceX", -1, 1, 3, 3, Q("80 mm")))
sketch3.addConstraint(Sketcher.Constraint("DistanceX", -1, 1, 4, 3, Q("60 mm")))
sketch3.addConstraint(Sketcher.Constraint("DistanceX", -1, 1, 5, 3, Q("100 mm")))
sketch3.addConstraint(Sketcher.Constraint("DistanceX", -1, 1, 6, 3, Q("120 mm")))
sketch3.addConstraint(Sketcher.Constraint("DistanceX", -1, 1, 7, 3, Q("140 mm")))
sketch3.addConstraint(Sketcher.Constraint("DistanceX", -1, 1, 8, 3, Q("160 mm")))
sketch3.addConstraint(Sketcher.Constraint("DistanceX", -1, 1, 9, 3, Q("180 mm")))
sketch3.addConstraint(Sketcher.Constraint("DistanceX", -1, 1, 10, 3, Q("190 mm")))
sketch3.addConstraint(Sketcher.Constraint("DistanceX", -1, 1, 11, 3, Q("170 mm")))
sketch3.addConstraint(Sketcher.Constraint("DistanceX", -1, 1, 12, 3, Q("150 mm")))
sketch3.addConstraint(Sketcher.Constraint("DistanceX", -1, 1, 13, 3, Q("130 mm")))
sketch3.addConstraint(Sketcher.Constraint("DistanceX", -1, 1, 14, 3, Q("110 mm")))
sketch3.addConstraint(Sketcher.Constraint("DistanceX", -1, 1, 15, 3, Q("90 mm")))
sketch3.addConstraint(Sketcher.Constraint("DistanceX", -1, 1, 16, 3, Q("70 mm")))
sketch3.addConstraint(Sketcher.Constraint("DistanceX", -1, 1, 17, 3, Q("50 mm")))
sketch3.addConstraint(Sketcher.Constraint("DistanceX", -1, 1, 18, 3, Q("30 mm")))
sketch3.addConstraint(Sketcher.Constraint("DistanceX", -1, 1, 19, 3, Q("10 mm")))
sketch3.addConstraint(Sketcher.Constraint("DistanceY", 10, 3, -1, 1, Q("17.320508 mm")))
sketch3.addConstraint(Sketcher.Constraint("DistanceY", 20, 3, 19, 3, Q("17.320508 mm")))
sketch3.addConstraint(Sketcher.Constraint("DistanceY", 30, 3, 29, 3, Q("17.320508 mm")))
sketch3.addConstraint(Sketcher.Constraint("DistanceY", 40, 3, 38, 3, Q("17.320508 mm")))
pocket2 = body.newObject("PartDesign::Pocket", "Pocket001")
pocket2.Profile = sketch3
pocket2.Length = 10

doc.recompute()
